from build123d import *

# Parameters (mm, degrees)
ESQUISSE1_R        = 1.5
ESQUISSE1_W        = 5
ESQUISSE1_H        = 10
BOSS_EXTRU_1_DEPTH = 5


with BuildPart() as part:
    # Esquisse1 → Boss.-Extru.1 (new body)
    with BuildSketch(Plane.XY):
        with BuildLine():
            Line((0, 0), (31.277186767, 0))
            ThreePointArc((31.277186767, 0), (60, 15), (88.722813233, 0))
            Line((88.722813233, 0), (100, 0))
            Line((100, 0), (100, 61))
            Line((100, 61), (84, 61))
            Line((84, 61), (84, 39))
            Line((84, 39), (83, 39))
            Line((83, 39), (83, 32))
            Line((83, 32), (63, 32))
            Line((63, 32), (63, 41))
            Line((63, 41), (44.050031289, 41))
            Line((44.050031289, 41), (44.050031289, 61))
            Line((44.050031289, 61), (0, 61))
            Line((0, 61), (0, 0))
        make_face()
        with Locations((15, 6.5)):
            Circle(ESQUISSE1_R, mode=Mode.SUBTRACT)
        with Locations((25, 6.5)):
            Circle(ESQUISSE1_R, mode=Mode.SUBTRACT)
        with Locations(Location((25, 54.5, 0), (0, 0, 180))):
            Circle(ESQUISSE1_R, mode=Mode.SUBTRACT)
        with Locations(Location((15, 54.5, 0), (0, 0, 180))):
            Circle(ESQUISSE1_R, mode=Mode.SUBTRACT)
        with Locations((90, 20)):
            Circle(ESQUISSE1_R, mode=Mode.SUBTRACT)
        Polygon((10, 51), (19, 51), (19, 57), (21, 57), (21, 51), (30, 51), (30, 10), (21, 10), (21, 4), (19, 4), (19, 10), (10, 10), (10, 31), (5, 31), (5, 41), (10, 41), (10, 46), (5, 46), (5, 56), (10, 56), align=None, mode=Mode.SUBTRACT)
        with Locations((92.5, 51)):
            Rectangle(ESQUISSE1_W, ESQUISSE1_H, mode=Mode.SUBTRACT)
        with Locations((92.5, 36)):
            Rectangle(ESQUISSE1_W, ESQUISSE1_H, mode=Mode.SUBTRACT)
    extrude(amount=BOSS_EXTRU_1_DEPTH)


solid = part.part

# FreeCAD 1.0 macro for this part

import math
import FreeCAD as App
import Part
import Sketcher
Q = App.Units.Quantity

doc = App.newDocument("Part")
body = doc.addObject("PartDesign::Body", "Body")

sketch1 = doc.addObject("Sketcher::SketchObject", "Sketch")
body.addObject(sketch1)
sketch1.AttachmentSupport = (doc.XY_Plane, [""])
sketch1.MapMode = "FlatFace"
sketch1.addGeometry([
    Part.LineSegment(App.Vector(0, 0, 0), App.Vector(31.3, 0, 0)),
    Part.ArcOfCircle(Part.Circle(App.Vector(60, -20, 0), App.Vector(0, 0, 1), 35), math.radians(35), math.radians(145)),
    Part.LineSegment(App.Vector(88.7, 0, 0), App.Vector(100, 0, 0)),
    Part.LineSegment(App.Vector(100, 0, 0), App.Vector(100, 61, 0)),
    Part.LineSegment(App.Vector(100, 61, 0), App.Vector(84, 61, 0)),
    Part.LineSegment(App.Vector(84, 61, 0), App.Vector(84, 39, 0)),
    Part.LineSegment(App.Vector(84, 39, 0), App.Vector(83, 39, 0)),
    Part.LineSegment(App.Vector(83, 39, 0), App.Vector(83, 32, 0)),
    Part.LineSegment(App.Vector(83, 32, 0), App.Vector(63, 32, 0)),
    Part.LineSegment(App.Vector(63, 32, 0), App.Vector(63, 41, 0)),
    Part.LineSegment(App.Vector(63, 41, 0), App.Vector(44.1, 41, 0)),
    Part.LineSegment(App.Vector(44.1, 41, 0), App.Vector(44.1, 61, 0)),
    Part.LineSegment(App.Vector(44.1, 61, 0), App.Vector(0, 61, 0)),
    Part.LineSegment(App.Vector(0, 61, 0), App.Vector(0, 0, 0)),
    Part.Circle(App.Vector(15, 6.5, 0), App.Vector(0, 0, 1), 1.5),
    Part.Circle(App.Vector(25, 6.5, 0), App.Vector(0, 0, 1), 1.5),
    Part.Circle(App.Vector(90, 20, 0), App.Vector(0, 0, 1), 1.5),
    Part.LineSegment(App.Vector(10, 56, 0), App.Vector(10, 51, 0)),
    Part.LineSegment(App.Vector(10, 51, 0), App.Vector(19, 51, 0)),
    Part.LineSegment(App.Vector(19, 51, 0), App.Vector(19, 57, 0)),
    Part.LineSegment(App.Vector(19, 57, 0), App.Vector(21, 57, 0)),
    Part.LineSegment(App.Vector(21, 57, 0), App.Vector(21, 51, 0)),
    Part.LineSegment(App.Vector(21, 51, 0), App.Vector(30, 51, 0)),
    Part.LineSegment(App.Vector(30, 51, 0), App.Vector(30, 10, 0)),
    Part.LineSegment(App.Vector(30, 10, 0), App.Vector(21, 10, 0)),
    Part.LineSegment(App.Vector(21, 10, 0), App.Vector(21, 4, 0)),
    Part.LineSegment(App.Vector(21, 4, 0), App.Vector(19, 4, 0)),
    Part.LineSegment(App.Vector(19, 4, 0), App.Vector(19, 10, 0)),
    Part.LineSegment(App.Vector(19, 10, 0), App.Vector(10, 10, 0)),
    Part.LineSegment(App.Vector(10, 10, 0), App.Vector(10, 31, 0)),
    Part.LineSegment(App.Vector(10, 31, 0), App.Vector(5, 31, 0)),
    Part.LineSegment(App.Vector(5, 31, 0), App.Vector(5, 41, 0)),
    Part.LineSegment(App.Vector(5, 41, 0), App.Vector(10, 41, 0)),
    Part.LineSegment(App.Vector(10, 41, 0), App.Vector(10, 46, 0)),
    Part.LineSegment(App.Vector(10, 46, 0), App.Vector(5, 46, 0)),
    Part.LineSegment(App.Vector(5, 46, 0), App.Vector(5, 56, 0)),
    Part.LineSegment(App.Vector(5, 56, 0), App.Vector(10, 56, 0)),
    Part.Circle(App.Vector(15, 54.5, 0), App.Vector(0, 0, 1), 1.5),
    Part.Circle(App.Vector(25, 54.5, 0), App.Vector(0, 0, 1), 1.5),
    Part.LineSegment(App.Vector(95, 31, 0), App.Vector(90, 31, 0)),
    Part.LineSegment(App.Vector(90, 31, 0), App.Vector(90, 41, 0)),
    Part.LineSegment(App.Vector(90, 41, 0), App.Vector(95, 41, 0)),
    Part.LineSegment(App.Vector(95, 41, 0), App.Vector(95, 31, 0)),
    Part.LineSegment(App.Vector(95, 46, 0), App.Vector(90, 46, 0)),
    Part.LineSegment(App.Vector(90, 46, 0), App.Vector(90, 56, 0)),
    Part.LineSegment(App.Vector(90, 56, 0), App.Vector(95, 56, 0)),
    Part.LineSegment(App.Vector(95, 56, 0), App.Vector(95, 46, 0)),
], False)
sketch1.addConstraint([
    Sketcher.Constraint("Coincident", 0, 2, 1, 2),
    Sketcher.Constraint("Coincident", 1, 1, 2, 1),
    Sketcher.Constraint("Coincident", 2, 2, 3, 1),
    Sketcher.Constraint("Coincident", 3, 2, 4, 1),
    Sketcher.Constraint("Coincident", 4, 2, 5, 1),
    Sketcher.Constraint("Coincident", 5, 2, 6, 1),
    Sketcher.Constraint("Coincident", 6, 2, 7, 1),
    Sketcher.Constraint("Coincident", 7, 2, 8, 1),
    Sketcher.Constraint("Coincident", 8, 2, 9, 1),
    Sketcher.Constraint("Coincident", 9, 2, 10, 1),
    Sketcher.Constraint("Coincident", 10, 2, 11, 1),
    Sketcher.Constraint("Coincident", 11, 2, 12, 1),
    Sketcher.Constraint("Coincident", 12, 2, 13, 1),
    Sketcher.Constraint("Coincident", 13, 2, 0, 1),
    Sketcher.Constraint("Coincident", 17, 2, 18, 1),
    Sketcher.Constraint("Coincident", 18, 2, 19, 1),
    Sketcher.Constraint("Coincident", 19, 2, 20, 1),
    Sketcher.Constraint("Coincident", 20, 2, 21, 1),
    Sketcher.Constraint("Coincident", 21, 2, 22, 1),
    Sketcher.Constraint("Coincident", 22, 2, 23, 1),
    Sketcher.Constraint("Coincident", 23, 2, 24, 1),
    Sketcher.Constraint("Coincident", 24, 2, 25, 1),
    Sketcher.Constraint("Coincident", 25, 2, 26, 1),
    Sketcher.Constraint("Coincident", 26, 2, 27, 1),
    Sketcher.Constraint("Coincident", 27, 2, 28, 1),
    Sketcher.Constraint("Coincident", 28, 2, 29, 1),
    Sketcher.Constraint("Coincident", 29, 2, 30, 1),
    Sketcher.Constraint("Coincident", 30, 2, 31, 1),
    Sketcher.Constraint("Coincident", 31, 2, 32, 1),
    Sketcher.Constraint("Coincident", 32, 2, 33, 1),
    Sketcher.Constraint("Coincident", 33, 2, 34, 1),
    Sketcher.Constraint("Coincident", 34, 2, 35, 1),
    Sketcher.Constraint("Coincident", 35, 2, 36, 1),
    Sketcher.Constraint("Coincident", 36, 2, 17, 1),
    Sketcher.Constraint("Coincident", 39, 2, 40, 1),
    Sketcher.Constraint("Coincident", 40, 2, 41, 1),
    Sketcher.Constraint("Coincident", 41, 2, 42, 1),
    Sketcher.Constraint("Coincident", 42, 2, 39, 1),
    Sketcher.Constraint("Coincident", 43, 2, 44, 1),
    Sketcher.Constraint("Coincident", 44, 2, 45, 1),
    Sketcher.Constraint("Coincident", 45, 2, 46, 1),
    Sketcher.Constraint("Coincident", 46, 2, 43, 1),
    Sketcher.Constraint("Horizontal", 0),
    Sketcher.Constraint("Horizontal", 2),
    Sketcher.Constraint("Vertical", 3),
    Sketcher.Constraint("Horizontal", 4),
    Sketcher.Constraint("Vertical", 5),
    Sketcher.Constraint("Horizontal", 6),
    Sketcher.Constraint("Vertical", 7),
    Sketcher.Constraint("Horizontal", 8),
    Sketcher.Constraint("Vertical", 9),
    Sketcher.Constraint("Horizontal", 10),
    Sketcher.Constraint("Vertical", 11),
    Sketcher.Constraint("Horizontal", 12),
    Sketcher.Constraint("Vertical", 13),
    Sketcher.Constraint("Vertical", 17),
    Sketcher.Constraint("Horizontal", 18),
    Sketcher.Constraint("Vertical", 19),
    Sketcher.Constraint("Horizontal", 20),
    Sketcher.Constraint("Vertical", 21),
    Sketcher.Constraint("Horizontal", 22),
    Sketcher.Constraint("Vertical", 23),
    Sketcher.Constraint("Horizontal", 24),
    Sketcher.Constraint("Vertical", 25),
    Sketcher.Constraint("Horizontal", 26),
    Sketcher.Constraint("Vertical", 27),
    Sketcher.Constraint("Horizontal", 28),
    Sketcher.Constraint("Vertical", 29),
    Sketcher.Constraint("Horizontal", 30),
    Sketcher.Constraint("Vertical", 31),
    Sketcher.Constraint("Horizontal", 32),
    Sketcher.Constraint("Vertical", 33),
    Sketcher.Constraint("Horizontal", 34),
    Sketcher.Constraint("Vertical", 35),
    Sketcher.Constraint("Horizontal", 36),
    Sketcher.Constraint("Horizontal", 39),
    Sketcher.Constraint("Vertical", 40),
    Sketcher.Constraint("Horizontal", 41),
    Sketcher.Constraint("Vertical", 42),
    Sketcher.Constraint("Horizontal", 43),
    Sketcher.Constraint("Vertical", 44),
    Sketcher.Constraint("Horizontal", 45),
    Sketcher.Constraint("Vertical", 46),
    Sketcher.Constraint("Coincident", 13, 2, -1, 1),
    Sketcher.Constraint("Equal", 14, 15),
    Sketcher.Constraint("Equal", 15, 16),
    Sketcher.Constraint("Equal", 16, 37),
    Sketcher.Constraint("Equal", 37, 38),
    Sketcher.Constraint("PointOnObject", 1, 1, -1),
    Sketcher.Constraint("Horizontal", 14, 3, 15, 3),
    Sketcher.Constraint("Horizontal", 37, 3, 38, 3),
    Sketcher.Constraint("Horizontal", 4, 2, 11, 2),
    Sketcher.Constraint("Horizontal", 18, 2, 21, 2),
    Sketcher.Constraint("Horizontal", 24, 2, 27, 2),
    Sketcher.Constraint("Horizontal", 10, 2, 31, 2),
    Sketcher.Constraint("Horizontal", 30, 2, 39, 2),
    Sketcher.Constraint("Horizontal", 32, 2, 40, 2),
    Sketcher.Constraint("Horizontal", 34, 2, 43, 2),
    Sketcher.Constraint("Horizontal", 36, 2, 44, 2),
    Sketcher.Constraint("Vertical", 14, 3, 37, 3),
    Sketcher.Constraint("Vertical", 15, 3, 38, 3),
    Sketcher.Constraint("Vertical", 21, 2, 24, 2),
    Sketcher.Constraint("Vertical", 19, 2, 26, 2),
    Sketcher.Constraint("Vertical", 17, 2, 28, 2),
    Sketcher.Constraint("Vertical", 29, 2, 32, 2),
    Sketcher.Constraint("Vertical", 31, 2, 34, 2),
    Sketcher.Constraint("Vertical", 16, 3, 39, 2),
    Sketcher.Constraint("Vertical", 40, 2, 43, 2),
    Sketcher.Constraint("Vertical", 42, 2, 45, 2),
    Sketcher.Constraint("Equal", 18, 22),
    Sketcher.Constraint("Equal", 36, 39),
    Sketcher.Constraint("Equal", 28, 9),
    Sketcher.Constraint("Equal", 8, 11),
    Sketcher.Constraint("Equal", 45, 17),
    Sketcher.Constraint("Equal", 21, 25),
    Sketcher.Constraint("Equal", 17, 33),
    Sketcher.Constraint("Equal", 31, 35),
    Sketcher.Constraint("Diameter", 14, Q("3 mm")),
    Sketcher.Constraint("Radius", 1, Q("35 mm")),
    Sketcher.Constraint("DistanceX", 4, 2, 4, 1, Q("16 mm")),
    Sketcher.Constraint("DistanceX", 6, 2, 6, 1, Q("1 mm")),
    Sketcher.Constraint("DistanceX", 8, 2, 8, 1, Q("20 mm")),
    Sketcher.Constraint("DistanceX", 18, 1, 18, 2, Q("9 mm")),
    Sketcher.Constraint("DistanceX", 20, 1, 20, 2, Q("2 mm")),
    Sketcher.Constraint("DistanceX", 30, 2, 30, 1, Q("5 mm")),
    Sketcher.Constraint("DistanceY", 3, 1, 3, 2, Q("61 mm")),
    Sketcher.Constraint("DistanceY", 5, 2, 5, 1, Q("22 mm")),
    Sketcher.Constraint("DistanceY", 19, 1, 19, 2, Q("6 mm")),
    Sketcher.Constraint("DistanceY", 23, 2, 23, 1, Q("41 mm")),
    Sketcher.Constraint("DistanceY", 29, 1, 29, 2, Q("21 mm")),
    Sketcher.Constraint("DistanceX", -1, 1, 1, 3, Q("60 mm")),
    Sketcher.Constraint("DistanceY", 1, 3, -1, 1, Q("20 mm")),
    Sketcher.Constraint("DistanceX", -1, 1, 14, 3, Q("15 mm")),
    Sketcher.Constraint("DistanceX", -1, 1, 15, 3, Q("25 mm")),
    Sketcher.Constraint("DistanceX", -1, 1, 16, 3, Q("90 mm")),
    Sketcher.Constraint("DistanceY", -1, 1, 16, 3, Q("20 mm")),
    Sketcher.Constraint("DistanceX", -1, 1, 2, 2, Q("100 mm")),
    Sketcher.Constraint("DistanceX", -1, 1, 17, 2, Q("10 mm")),
    Sketcher.Constraint("DistanceY", 14, 3, 37, 3, Q("48 mm")),
    Sketcher.Constraint("DistanceY", -1, 1, 14, 3, Q("6.5 mm")),
    Sketcher.Constraint("DistanceX", 10, 2, 10, 1, Q("18.949969 mm")),
])
pad1 = doc.addObject("PartDesign::Pad", "Pad")
body.addObject(pad1)
pad1.Profile = sketch1
pad1.Length = 5

doc.recompute()
